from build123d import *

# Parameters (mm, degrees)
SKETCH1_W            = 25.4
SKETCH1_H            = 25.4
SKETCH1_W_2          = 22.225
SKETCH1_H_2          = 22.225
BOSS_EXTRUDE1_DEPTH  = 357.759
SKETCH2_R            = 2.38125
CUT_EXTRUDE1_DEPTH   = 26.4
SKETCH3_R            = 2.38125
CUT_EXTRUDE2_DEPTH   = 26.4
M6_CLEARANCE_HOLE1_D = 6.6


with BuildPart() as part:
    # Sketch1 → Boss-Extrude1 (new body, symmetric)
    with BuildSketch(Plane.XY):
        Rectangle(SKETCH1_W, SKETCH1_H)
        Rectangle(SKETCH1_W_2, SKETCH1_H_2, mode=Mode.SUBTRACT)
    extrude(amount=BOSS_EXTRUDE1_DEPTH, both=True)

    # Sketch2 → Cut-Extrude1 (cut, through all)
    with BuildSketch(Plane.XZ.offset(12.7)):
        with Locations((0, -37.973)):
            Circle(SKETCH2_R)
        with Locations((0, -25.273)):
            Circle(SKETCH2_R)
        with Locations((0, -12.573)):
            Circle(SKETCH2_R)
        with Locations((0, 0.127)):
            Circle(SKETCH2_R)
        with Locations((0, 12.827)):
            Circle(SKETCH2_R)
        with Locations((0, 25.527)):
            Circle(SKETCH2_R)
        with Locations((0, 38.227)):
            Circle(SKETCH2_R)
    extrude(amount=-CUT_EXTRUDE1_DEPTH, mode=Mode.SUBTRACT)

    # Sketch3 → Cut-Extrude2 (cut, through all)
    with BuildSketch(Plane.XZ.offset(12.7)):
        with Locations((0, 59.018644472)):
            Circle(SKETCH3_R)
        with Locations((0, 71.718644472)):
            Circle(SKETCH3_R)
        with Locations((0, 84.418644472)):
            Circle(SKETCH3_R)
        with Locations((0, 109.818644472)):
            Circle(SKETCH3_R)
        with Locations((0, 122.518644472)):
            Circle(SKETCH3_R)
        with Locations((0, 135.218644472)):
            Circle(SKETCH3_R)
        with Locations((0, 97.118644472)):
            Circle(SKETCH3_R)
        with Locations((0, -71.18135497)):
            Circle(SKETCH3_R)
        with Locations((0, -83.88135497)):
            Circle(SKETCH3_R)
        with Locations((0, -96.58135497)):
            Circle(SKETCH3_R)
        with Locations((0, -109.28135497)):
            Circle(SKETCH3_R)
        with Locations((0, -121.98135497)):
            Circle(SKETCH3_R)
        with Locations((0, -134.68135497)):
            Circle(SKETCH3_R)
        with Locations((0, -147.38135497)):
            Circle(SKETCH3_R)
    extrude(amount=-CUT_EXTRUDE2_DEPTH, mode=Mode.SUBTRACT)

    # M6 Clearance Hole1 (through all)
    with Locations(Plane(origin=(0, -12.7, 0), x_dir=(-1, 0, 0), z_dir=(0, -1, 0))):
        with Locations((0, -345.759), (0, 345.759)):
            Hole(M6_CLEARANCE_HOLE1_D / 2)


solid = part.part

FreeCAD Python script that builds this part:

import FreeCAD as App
import Part
import Sketcher

V = App.Vector
Q = App.Units.Quantity

doc = App.newDocument("Part")
body = doc.addObject("PartDesign::Body", "Body")

sketch1 = body.newObject("Sketcher::SketchObject", "Sketch")
sketch1.AttachmentSupport = (doc.getObject("XY_Plane"), [""])
sketch1.MapMode = "FlatFace"
sketch1.addGeometry([
    Part.LineSegment(V(-12.7, 12.7, 0), V(-12.7, -12.7, 0)),
    Part.LineSegment(V(-12.7, -12.7, 0), V(12.7, -12.7, 0)),
    Part.LineSegment(V(12.7, -12.7, 0), V(12.7, 12.7, 0)),
    Part.LineSegment(V(12.7, 12.7, 0), V(-12.7, 12.7, 0)),
    Part.LineSegment(V(11.1125, -11.1125, 0), V(-11.1125, -11.1125, 0)),
    Part.LineSegment(V(-11.1125, -11.1125, 0), V(-11.1125, 11.1125, 0)),
    Part.LineSegment(V(-11.1125, 11.1125, 0), V(11.1125, 11.1125, 0)),
    Part.LineSegment(V(11.1125, 11.1125, 0), V(11.1125, -11.1125, 0)),
], False)
sketch1.addConstraint([
    Sketcher.Constraint("Coincident", 0, 2, 1, 1),
    Sketcher.Constraint("Coincident", 1, 2, 2, 1),
    Sketcher.Constraint("Coincident", 2, 2, 3, 1),
    Sketcher.Constraint("Coincident", 3, 2, 0, 1),
    Sketcher.Constraint("Coincident", 4, 2, 5, 1),
    Sketcher.Constraint("Coincident", 5, 2, 6, 1),
    Sketcher.Constraint("Coincident", 6, 2, 7, 1),
    Sketcher.Constraint("Coincident", 7, 2, 4, 1),
    Sketcher.Constraint("Vertical", 0),
    Sketcher.Constraint("Horizontal", 1),
    Sketcher.Constraint("Vertical", 2),
    Sketcher.Constraint("Horizontal", 3),
    Sketcher.Constraint("Horizontal", 4),
    Sketcher.Constraint("Vertical", 5),
    Sketcher.Constraint("Horizontal", 6),
    Sketcher.Constraint("Vertical", 7),
    Sketcher.Constraint("Symmetric", 0, 2, 2, 2, -1, 1),
    Sketcher.Constraint("Symmetric", 4, 2, 6, 2, -1, 1),
    Sketcher.Constraint("Equal", 3, 0),
    Sketcher.Constraint("Equal", 6, 5),
    Sketcher.Constraint("DistanceX", 1, 1, 1, 2, Q("1 in")),
    Sketcher.Constraint("DistanceX", 4, 2, 4, 1, Q("0.875 in")),
])
pad1 = body.newObject("PartDesign::Pad", "Pad")
pad1.Profile = sketch1
pad1.Length = Q("28.17 in")
pad1.Midplane = True

sketch2 = body.newObject("Sketcher::SketchObject", "Sketch001")
sketch2.AttachmentSupport = (doc.getObject("XZ_Plane"), [""])
sketch2.MapMode = "FlatFace"
sketch2.AttachmentOffset = App.Placement(V(0, 0, 0.5 * 25.4), App.Rotation())
sketch2.addGeometry([
    Part.Circle(V(0, -37.973, 0), V(0, 0, 1), 2.38125),
    Part.Circle(V(0, -25.273, 0), V(0, 0, 1), 2.38125),
    Part.Circle(V(0, -12.573, 0), V(0, 0, 1), 2.38125),
    Part.Circle(V(0, 0.127, 0), V(0, 0, 1), 2.38125),
    Part.Circle(V(0, 12.827, 0), V(0, 0, 1), 2.38125),
    Part.Circle(V(0, 25.527, 0), V(0, 0, 1), 2.38125),
    Part.Circle(V(0, 38.227, 0), V(0, 0, 1), 2.38125),
], False)
sketch2.addConstraint([
    Sketcher.Constraint("Equal", 0, 1),
    Sketcher.Constraint("Equal", 1, 2),
    Sketcher.Constraint("Equal", 2, 3),
    Sketcher.Constraint("Equal", 3, 4),
    Sketcher.Constraint("Equal", 4, 5),
    Sketcher.Constraint("Equal", 5, 6),
    Sketcher.Constraint("PointOnObject", 0, 3, -2),
    Sketcher.Constraint("PointOnObject", 1, 3, -2),
    Sketcher.Constraint("PointOnObject", 2, 3, -2),
    Sketcher.Constraint("PointOnObject", 3, 3, -2),
    Sketcher.Constraint("PointOnObject", 4, 3, -2),
    Sketcher.Constraint("PointOnObject", 5, 3, -2),
    Sketcher.Constraint("PointOnObject", 6, 3, -2),
    Sketcher.Constraint("Diameter", 0, Q("0.1875 in")),
    Sketcher.Constraint("DistanceY", 0, 3, 2, 3, Q("1 in")),
    Sketcher.Constraint("DistanceY", 1, 3, 3, 3, Q("1 in")),
    Sketcher.Constraint("DistanceY", 2, 3, 4, 3, Q("1 in")),
    Sketcher.Constraint("DistanceY", 3, 3, 5, 3, Q("1 in")),
    Sketcher.Constraint("DistanceY", 4, 3, 6, 3, Q("1 in")),
    Sketcher.Constraint("DistanceY", 0, 3, 1, 3, Q("0.5 in")),
    Sketcher.Constraint("DistanceY", 0, 3, -1, 1, Q("1.495 in")),
])
pocket1 = body.newObject("PartDesign::Pocket", "Pocket")
pocket1.Profile = sketch2
pocket1.Type = "ThroughAll"

sketch3 = body.newObject("Sketcher::SketchObject", "Sketch002")
sketch3.AttachmentSupport = (doc.getObject("XZ_Plane"), [""])
sketch3.MapMode = "FlatFace"
sketch3.AttachmentOffset = App.Placement(V(0, 0, 0.5 * 25.4), App.Rotation())
sketch3.addGeometry([
    Part.Circle(V(0, 59.018644, 0), V(0, 0, 1), 2.38125),
    Part.Circle(V(0, 71.718644, 0), V(0, 0, 1), 2.38125),
    Part.Circle(V(0, 84.418644, 0), V(0, 0, 1), 2.38125),
    Part.Circle(V(0, 109.818644, 0), V(0, 0, 1), 2.38125),
    Part.Circle(V(0, 122.518644, 0), V(0, 0, 1), 2.38125),
    Part.Circle(V(0, 135.218644, 0), V(0, 0, 1), 2.38125),
    Part.Circle(V(0, 97.118644, 0), V(0, 0, 1), 2.38125),
    Part.Circle(V(0, -71.181355, 0), V(0, 0, 1), 2.38125),
    Part.Circle(V(0, -83.881355, 0), V(0, 0, 1), 2.38125),
    Part.Circle(V(0, -96.581355, 0), V(0, 0, 1), 2.38125),
    Part.Circle(V(0, -109.281355, 0), V(0, 0, 1), 2.38125),
    Part.Circle(V(0, -121.981355, 0), V(0, 0, 1), 2.38125),
    Part.Circle(V(0, -134.681355, 0), V(0, 0, 1), 2.38125),
    Part.Circle(V(0, -147.381355, 0), V(0, 0, 1), 2.38125),
], False)
sketch3.addConstraint([
    Sketcher.Constraint("Equal", 0, 1),
    Sketcher.Constraint("Equal", 1, 2),
    Sketcher.Constraint("Equal", 2, 3),
    Sketcher.Constraint("Equal", 3, 4),
    Sketcher.Constraint("Equal", 4, 5),
    Sketcher.Constraint("Equal", 5, 6),
    Sketcher.Constraint("Equal", 6, 7),
    Sketcher.Constraint("Equal", 7, 8),
    Sketcher.Constraint("Equal", 8, 9),
    Sketcher.Constraint("Equal", 9, 10),
    Sketcher.Constraint("Equal", 10, 11),
    Sketcher.Constraint("Equal", 11, 12),
    Sketcher.Constraint("Equal", 12, 13),
    Sketcher.Constraint("PointOnObject", 0, 3, -2),
    Sketcher.Constraint("PointOnObject", 1, 3, -2),
    Sketcher.Constraint("PointOnObject", 2, 3, -2),
    Sketcher.Constraint("PointOnObject", 3, 3, -2),
    Sketcher.Constraint("PointOnObject", 4, 3, -2),
    Sketcher.Constraint("PointOnObject", 5, 3, -2),
    Sketcher.Constraint("PointOnObject", 6, 3, -2),
    Sketcher.Constraint("PointOnObject", 7, 3, -2),
    Sketcher.Constraint("PointOnObject", 8, 3, -2),
    Sketcher.Constraint("PointOnObject", 9, 3, -2),
    Sketcher.Constraint("PointOnObject", 10, 3, -2),
    Sketcher.Constraint("PointOnObject", 11, 3, -2),
    Sketcher.Constraint("PointOnObject", 12, 3, -2),
    Sketcher.Constraint("PointOnObject", 13, 3, -2),
    Sketcher.Constraint("Diameter", 0, Q("0.1875 in")),
    Sketcher.Constraint("DistanceY", 0, 3, 2, 3, Q("1 in")),
    Sketcher.Constraint("DistanceY", 2, 3, 3, 3, Q("1 in")),
    Sketcher.Constraint("DistanceY", 1, 3, 4, 3, Q("2 in")),
    Sketcher.Constraint("DistanceY", 3, 3, 5, 3, Q("1 in")),
    Sketcher.Constraint("DistanceY", 1, 3, 6, 3, Q("1 in")),
    Sketcher.Constraint("DistanceY", 9, 3, 7, 3, Q("1 in")),
    Sketcher.Constraint("DistanceY", 10, 3, 8, 3, Q("1 in")),
    Sketcher.Constraint("DistanceY", 11, 3, 9, 3, Q("1 in")),
    Sketcher.Constraint("DistanceY", 12, 3, 10, 3, Q("1 in")),
    Sketcher.Constraint("DistanceY", 13, 3, 11, 3, Q("1 in")),
    Sketcher.Constraint("DistanceY", 0, 3, 1, 3, Q("0.5 in")),
    Sketcher.Constraint("DistanceY", 8, 3, 7, 3, Q("0.5 in")),
    Sketcher.Constraint("DistanceY", 7, 3, 0, 3, Q("130.199999 mm")),
    Sketcher.Constraint("DistanceY", -1, 1, 0, 3, Q("59.018644 mm")),
])
pocket2 = body.newObject("PartDesign::Pocket", "Pocket001")
pocket2.Profile = sketch3
pocket2.Type = "ThroughAll"

sketch4 = body.newObject("Sketcher::SketchObject", "Sketch003")
sketch4.AttachmentSupport = (doc.getObject("XZ_Plane"), [""])
sketch4.MapMode = "FlatFace"
sketch4.AttachmentOffset = App.Placement(V(0, 0, 0.5 * 25.4), App.Rotation())
sketch4.addGeometry([
    Part.Circle(V(0, 345.759, 0), V(0, 0, 1), 3.3),
    Part.Circle(V(0, -345.759, 0), V(0, 0, 1), 3.3),
], False)
sketch4.addConstraint([
    Sketcher.Constraint("Equal", 0, 1),
    Sketcher.Constraint("Symmetric", 0, 3, 1, 3, -1, 1),
    Sketcher.Constraint("PointOnObject", 0, 3, -2),
    Sketcher.Constraint("Diameter", 0, Q("6.6 mm")),
    Sketcher.Constraint("DistanceY", -1, 1, 0, 3, Q("345.759 mm")),
])
doc.recompute()
hole = body.newObject("PartDesign::Hole", "Hole")
hole.Profile = sketch4
hole.ThreadType = "None"
hole.Diameter = 6.6
hole.DepthType = "ThroughAll"

doc.recompute()
